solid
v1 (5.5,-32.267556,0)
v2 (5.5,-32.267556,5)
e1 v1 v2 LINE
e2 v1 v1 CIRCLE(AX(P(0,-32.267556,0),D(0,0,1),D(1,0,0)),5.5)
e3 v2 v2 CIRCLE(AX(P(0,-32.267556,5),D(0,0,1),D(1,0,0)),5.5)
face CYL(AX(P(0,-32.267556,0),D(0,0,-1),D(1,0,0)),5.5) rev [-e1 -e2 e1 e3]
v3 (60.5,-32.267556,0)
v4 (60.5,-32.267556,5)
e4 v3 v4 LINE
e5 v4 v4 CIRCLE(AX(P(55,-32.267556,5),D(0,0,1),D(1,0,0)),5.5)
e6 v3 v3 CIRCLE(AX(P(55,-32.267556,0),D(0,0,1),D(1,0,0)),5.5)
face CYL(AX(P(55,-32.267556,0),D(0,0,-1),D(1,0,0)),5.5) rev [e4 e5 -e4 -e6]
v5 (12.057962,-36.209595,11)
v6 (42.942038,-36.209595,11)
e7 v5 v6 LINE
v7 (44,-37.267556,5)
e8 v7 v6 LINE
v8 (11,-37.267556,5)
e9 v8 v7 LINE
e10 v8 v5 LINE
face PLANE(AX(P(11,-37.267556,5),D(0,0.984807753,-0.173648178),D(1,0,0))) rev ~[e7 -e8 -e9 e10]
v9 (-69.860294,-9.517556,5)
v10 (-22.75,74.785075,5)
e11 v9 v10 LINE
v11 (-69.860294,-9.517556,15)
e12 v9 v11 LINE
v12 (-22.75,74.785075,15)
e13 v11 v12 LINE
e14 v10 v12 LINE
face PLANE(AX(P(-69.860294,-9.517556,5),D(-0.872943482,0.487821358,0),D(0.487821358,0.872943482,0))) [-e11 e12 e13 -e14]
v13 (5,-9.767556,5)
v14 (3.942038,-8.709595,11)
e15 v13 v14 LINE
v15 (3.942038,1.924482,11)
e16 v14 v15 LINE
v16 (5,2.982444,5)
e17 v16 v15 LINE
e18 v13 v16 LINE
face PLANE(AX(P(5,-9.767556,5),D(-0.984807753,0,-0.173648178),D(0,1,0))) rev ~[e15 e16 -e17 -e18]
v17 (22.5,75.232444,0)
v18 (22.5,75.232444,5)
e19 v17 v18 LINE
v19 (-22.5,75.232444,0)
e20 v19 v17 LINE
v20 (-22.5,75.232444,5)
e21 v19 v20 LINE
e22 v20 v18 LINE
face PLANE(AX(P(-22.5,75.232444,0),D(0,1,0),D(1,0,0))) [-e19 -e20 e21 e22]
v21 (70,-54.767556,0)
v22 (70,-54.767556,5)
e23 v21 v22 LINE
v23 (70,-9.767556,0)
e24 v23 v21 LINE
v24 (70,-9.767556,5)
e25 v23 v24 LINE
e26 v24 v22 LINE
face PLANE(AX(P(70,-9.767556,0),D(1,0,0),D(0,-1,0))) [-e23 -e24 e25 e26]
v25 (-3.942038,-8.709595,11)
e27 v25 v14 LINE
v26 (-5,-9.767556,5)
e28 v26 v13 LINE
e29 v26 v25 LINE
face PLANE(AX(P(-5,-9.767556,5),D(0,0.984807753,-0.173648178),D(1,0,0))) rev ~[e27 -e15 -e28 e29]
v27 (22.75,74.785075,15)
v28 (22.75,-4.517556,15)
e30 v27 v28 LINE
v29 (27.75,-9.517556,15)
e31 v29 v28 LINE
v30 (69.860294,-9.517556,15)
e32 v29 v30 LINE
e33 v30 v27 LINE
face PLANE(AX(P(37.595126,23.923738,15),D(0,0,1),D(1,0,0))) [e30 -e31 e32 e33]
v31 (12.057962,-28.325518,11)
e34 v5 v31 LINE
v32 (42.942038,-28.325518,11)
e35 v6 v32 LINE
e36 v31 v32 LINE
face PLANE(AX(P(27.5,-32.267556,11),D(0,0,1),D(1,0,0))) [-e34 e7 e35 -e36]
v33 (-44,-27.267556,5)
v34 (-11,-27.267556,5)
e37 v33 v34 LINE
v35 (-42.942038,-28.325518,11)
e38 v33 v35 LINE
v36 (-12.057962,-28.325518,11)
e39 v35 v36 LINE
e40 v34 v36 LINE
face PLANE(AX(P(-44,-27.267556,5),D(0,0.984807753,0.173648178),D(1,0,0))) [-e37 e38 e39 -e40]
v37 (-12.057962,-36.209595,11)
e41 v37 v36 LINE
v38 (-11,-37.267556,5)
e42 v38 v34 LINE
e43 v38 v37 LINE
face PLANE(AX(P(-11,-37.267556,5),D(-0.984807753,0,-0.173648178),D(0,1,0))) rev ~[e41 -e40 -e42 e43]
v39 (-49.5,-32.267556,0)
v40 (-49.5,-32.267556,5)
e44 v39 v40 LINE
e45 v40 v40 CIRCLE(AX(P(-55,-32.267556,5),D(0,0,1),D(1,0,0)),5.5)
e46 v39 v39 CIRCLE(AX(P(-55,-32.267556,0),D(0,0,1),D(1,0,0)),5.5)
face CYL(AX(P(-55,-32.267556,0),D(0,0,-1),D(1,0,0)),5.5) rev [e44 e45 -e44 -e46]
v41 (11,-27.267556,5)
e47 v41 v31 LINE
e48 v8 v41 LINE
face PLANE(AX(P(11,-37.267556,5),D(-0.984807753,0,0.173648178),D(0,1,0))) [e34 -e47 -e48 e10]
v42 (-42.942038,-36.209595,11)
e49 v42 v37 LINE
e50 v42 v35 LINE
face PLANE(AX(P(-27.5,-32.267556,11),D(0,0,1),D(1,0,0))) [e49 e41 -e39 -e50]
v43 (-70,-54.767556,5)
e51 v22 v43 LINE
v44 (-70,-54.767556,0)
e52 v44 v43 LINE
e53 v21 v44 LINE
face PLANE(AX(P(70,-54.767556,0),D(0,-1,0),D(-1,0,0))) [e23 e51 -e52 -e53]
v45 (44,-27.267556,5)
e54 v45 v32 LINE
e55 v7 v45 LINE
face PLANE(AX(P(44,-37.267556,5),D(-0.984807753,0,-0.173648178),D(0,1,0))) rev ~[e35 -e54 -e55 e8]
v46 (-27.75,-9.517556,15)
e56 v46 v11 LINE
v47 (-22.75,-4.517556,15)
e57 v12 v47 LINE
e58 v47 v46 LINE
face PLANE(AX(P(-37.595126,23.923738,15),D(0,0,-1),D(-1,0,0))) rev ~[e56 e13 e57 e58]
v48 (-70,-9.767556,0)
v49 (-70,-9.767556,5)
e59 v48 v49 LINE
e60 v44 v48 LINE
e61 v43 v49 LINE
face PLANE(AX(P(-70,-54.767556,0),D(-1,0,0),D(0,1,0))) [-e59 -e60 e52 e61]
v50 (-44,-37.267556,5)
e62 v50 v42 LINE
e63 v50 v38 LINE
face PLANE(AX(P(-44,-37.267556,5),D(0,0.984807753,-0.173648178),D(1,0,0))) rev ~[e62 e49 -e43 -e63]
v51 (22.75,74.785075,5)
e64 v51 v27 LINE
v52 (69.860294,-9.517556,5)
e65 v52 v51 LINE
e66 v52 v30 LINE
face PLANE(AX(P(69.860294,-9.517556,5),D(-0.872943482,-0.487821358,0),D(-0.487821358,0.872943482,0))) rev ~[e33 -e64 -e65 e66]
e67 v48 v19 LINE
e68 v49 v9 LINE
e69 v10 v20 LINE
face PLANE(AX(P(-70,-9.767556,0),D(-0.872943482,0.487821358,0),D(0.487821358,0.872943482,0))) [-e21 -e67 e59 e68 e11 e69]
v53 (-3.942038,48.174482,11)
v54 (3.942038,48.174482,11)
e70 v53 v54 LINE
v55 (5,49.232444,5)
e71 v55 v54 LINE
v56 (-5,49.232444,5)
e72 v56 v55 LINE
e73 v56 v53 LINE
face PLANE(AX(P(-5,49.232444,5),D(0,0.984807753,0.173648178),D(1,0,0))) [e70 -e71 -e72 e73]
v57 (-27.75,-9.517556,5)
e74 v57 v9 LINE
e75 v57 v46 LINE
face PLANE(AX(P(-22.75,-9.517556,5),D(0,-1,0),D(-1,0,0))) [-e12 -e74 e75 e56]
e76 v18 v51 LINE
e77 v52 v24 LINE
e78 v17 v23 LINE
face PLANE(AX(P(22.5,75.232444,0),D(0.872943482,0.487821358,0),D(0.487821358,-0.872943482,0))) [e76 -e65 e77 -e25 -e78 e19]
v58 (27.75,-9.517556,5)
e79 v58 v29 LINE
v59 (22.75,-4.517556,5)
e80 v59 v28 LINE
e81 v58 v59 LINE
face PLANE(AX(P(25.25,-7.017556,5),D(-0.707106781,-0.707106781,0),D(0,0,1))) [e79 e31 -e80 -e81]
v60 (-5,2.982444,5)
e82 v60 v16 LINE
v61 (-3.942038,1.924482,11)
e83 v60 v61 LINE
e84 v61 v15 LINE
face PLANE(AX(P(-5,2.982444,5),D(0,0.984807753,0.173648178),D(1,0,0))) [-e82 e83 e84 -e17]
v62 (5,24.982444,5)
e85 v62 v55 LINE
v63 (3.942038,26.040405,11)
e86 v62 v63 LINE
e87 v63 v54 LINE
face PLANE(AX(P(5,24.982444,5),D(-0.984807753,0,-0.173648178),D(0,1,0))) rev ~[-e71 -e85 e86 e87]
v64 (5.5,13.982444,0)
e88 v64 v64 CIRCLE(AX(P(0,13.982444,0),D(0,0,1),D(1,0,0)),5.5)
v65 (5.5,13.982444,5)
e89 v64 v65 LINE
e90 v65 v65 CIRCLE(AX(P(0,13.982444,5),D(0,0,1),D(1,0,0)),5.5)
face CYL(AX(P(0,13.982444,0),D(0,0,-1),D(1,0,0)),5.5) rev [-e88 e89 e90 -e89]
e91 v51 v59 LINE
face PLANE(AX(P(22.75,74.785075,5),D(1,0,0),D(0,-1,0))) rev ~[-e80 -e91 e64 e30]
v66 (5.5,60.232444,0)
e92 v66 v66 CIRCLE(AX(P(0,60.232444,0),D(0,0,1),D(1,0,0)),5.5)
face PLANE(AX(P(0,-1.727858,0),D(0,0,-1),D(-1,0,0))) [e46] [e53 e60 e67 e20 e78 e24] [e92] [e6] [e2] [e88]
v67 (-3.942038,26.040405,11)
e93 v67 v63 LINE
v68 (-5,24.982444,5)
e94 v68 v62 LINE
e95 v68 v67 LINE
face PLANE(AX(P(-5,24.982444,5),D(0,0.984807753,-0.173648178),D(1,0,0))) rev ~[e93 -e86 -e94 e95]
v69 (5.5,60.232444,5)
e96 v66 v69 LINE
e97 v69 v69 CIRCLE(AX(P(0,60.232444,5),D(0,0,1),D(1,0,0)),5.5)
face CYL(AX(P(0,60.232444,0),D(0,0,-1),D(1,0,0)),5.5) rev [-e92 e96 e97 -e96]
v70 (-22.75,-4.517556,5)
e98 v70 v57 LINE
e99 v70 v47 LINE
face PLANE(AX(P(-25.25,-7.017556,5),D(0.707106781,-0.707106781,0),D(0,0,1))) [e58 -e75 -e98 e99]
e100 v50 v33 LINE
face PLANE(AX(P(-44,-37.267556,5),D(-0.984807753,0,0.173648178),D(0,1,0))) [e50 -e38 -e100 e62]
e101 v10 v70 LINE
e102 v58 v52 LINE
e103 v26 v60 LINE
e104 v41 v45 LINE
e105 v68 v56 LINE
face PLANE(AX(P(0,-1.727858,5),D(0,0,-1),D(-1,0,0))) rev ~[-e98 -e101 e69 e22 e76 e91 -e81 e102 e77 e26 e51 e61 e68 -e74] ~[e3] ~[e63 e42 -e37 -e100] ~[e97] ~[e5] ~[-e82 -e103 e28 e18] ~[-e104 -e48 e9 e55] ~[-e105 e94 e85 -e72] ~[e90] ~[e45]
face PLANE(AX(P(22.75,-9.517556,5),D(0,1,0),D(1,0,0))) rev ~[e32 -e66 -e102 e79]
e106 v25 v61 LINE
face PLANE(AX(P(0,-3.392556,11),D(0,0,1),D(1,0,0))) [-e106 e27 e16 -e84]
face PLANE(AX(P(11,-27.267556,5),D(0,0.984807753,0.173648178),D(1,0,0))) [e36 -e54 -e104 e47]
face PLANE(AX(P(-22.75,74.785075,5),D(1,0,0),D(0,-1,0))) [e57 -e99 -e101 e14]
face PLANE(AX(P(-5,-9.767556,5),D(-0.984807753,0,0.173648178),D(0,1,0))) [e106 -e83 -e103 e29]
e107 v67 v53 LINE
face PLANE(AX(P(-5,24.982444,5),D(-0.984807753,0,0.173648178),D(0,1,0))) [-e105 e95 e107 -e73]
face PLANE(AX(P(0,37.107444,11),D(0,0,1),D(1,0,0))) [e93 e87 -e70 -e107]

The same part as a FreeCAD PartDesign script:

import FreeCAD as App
import Part
import Sketcher
from FreeCAD import Vector
Q = App.Units.Quantity


def edges_at(feature, points):
    """Names of the edges that pass closest to the given points."""
    edges = feature.Shape.Edges
    near = lambda p: min(range(len(edges)), key=lambda i: edges[i].distToShape(Part.Vertex(*p))[0])
    return sorted({f"Edge{near(p) + 1}" for p in points})


def faces_at(feature, points):
    """Names of the faces that lie closest to the given points."""
    faces = feature.Shape.Faces
    near = lambda p: min(range(len(faces)), key=lambda i: faces[i].distToShape(Part.Vertex(*p))[0])
    return sorted({f"Face{near(p) + 1}" for p in points})


def add_polygon(sketch, points):
    """Adds a closed chain of lines whose ends are joined by coincident constraints."""
    first, n = sketch.GeometryCount, len(points)
    for a, b in zip(points, points[1:] + points[:1]):
        sketch.addGeometry(Part.LineSegment(App.Vector(*a, 0), App.Vector(*b, 0)), False)
    for i in range(n):
        sketch.addConstraint(Sketcher.Constraint("Coincident", first + i, 2, first + (i + 1) % n, 1))

doc = App.newDocument("Part")
body = doc.addObject("PartDesign::Body", "Body")

sketch1 = doc.addObject("Sketcher::SketchObject", "Sketch")
body.addObject(sketch1)
sketch1.AttachmentSupport = (doc.XY_Plane, [""])
sketch1.MapMode = "FlatFace"
add_polygon(sketch1, [(22.5, 75.232444), (-22.5, 75.232444), (-70, -9.767556), (-70, -54.767556), (70, -54.767556), (70, -9.767556)])
sketch1.addGeometry(Part.Circle(Vector(55, -32.267556, 0), Vector(0, 0, 1), 5.5), False)
sketch1.addGeometry(Part.Circle(Vector(0, -32.267556, 0), Vector(0, 0, 1), 5.5), False)
sketch1.addGeometry(Part.Circle(Vector(-55, -32.267556, 0), Vector(0, 0, 1), 5.5), False)
sketch1.addGeometry(Part.Circle(Vector(0, 13.982444, 0), Vector(0, 0, 1), 5.5), False)
sketch1.addGeometry(Part.Circle(Vector(0, 60.232444, 0), Vector(0, 0, 1), 5.5), False)
sketch1.addConstraint(Sketcher.Constraint("Horizontal", 0))
sketch1.addConstraint(Sketcher.Constraint("Vertical", 2))
sketch1.addConstraint(Sketcher.Constraint("Horizontal", 3))
sketch1.addConstraint(Sketcher.Constraint("Vertical", 4))
sketch1.addConstraint(Sketcher.Constraint("Equal", 6, 7))
sketch1.addConstraint(Sketcher.Constraint("Equal", 7, 8))
sketch1.addConstraint(Sketcher.Constraint("Equal", 8, 9))
sketch1.addConstraint(Sketcher.Constraint("Equal", 9, 10))
sketch1.addConstraint(Sketcher.Constraint("Symmetric", 6, 3, 8, 3, -2))
sketch1.addConstraint(Sketcher.Constraint("Symmetric", 1, 2, 4, 2, -2))
sketch1.addConstraint(Sketcher.Constraint("PointOnObject", 7, 3, -2))
sketch1.addConstraint(Sketcher.Constraint("PointOnObject", 9, 3, -2))
sketch1.addConstraint(Sketcher.Constraint("PointOnObject", 10, 3, -2))
sketch1.addConstraint(Sketcher.Constraint("Horizontal", 6, 3, 7, 3))
sketch1.addConstraint(Sketcher.Constraint("Equal", 0, 2))
sketch1.addConstraint(Sketcher.Constraint("Equal", 1, 5))
sketch1.addConstraint(Sketcher.Constraint("Diameter", 6, Q("11 mm")))
sketch1.addConstraint(Sketcher.Constraint("DistanceX", 0, 2, 0, 1, Q("45 mm")))
sketch1.addConstraint(Sketcher.Constraint("DistanceX", 3, 1, 3, 2, Q("140 mm")))
sketch1.addConstraint(Sketcher.Constraint("DistanceX", -1, 1, 6, 3, Q("55 mm")))
sketch1.addConstraint(Sketcher.Constraint("DistanceY", 10, 3, 0, 2, Q("15 mm")))
sketch1.addConstraint(Sketcher.Constraint("DistanceY", 1, 2, 0, 2, Q("85 mm")))
sketch1.addConstraint(Sketcher.Constraint("DistanceY", 7, 3, 10, 3, Q("92.5 mm")))
sketch1.addConstraint(Sketcher.Constraint("DistanceY", 7, 3, 9, 3, Q("46.25 mm")))
sketch1.addConstraint(Sketcher.Constraint("DistanceY", 6, 3, -1, 1, Q("32.267556 mm")))
pad1 = doc.addObject("PartDesign::Pad", "Pad")
body.addObject(pad1)
pad1.Profile = sketch1
pad1.Length = 5

sketch2 = doc.addObject("Sketcher::SketchObject", "Sketch001")
body.addObject(sketch2)
sketch2.AttachmentSupport = (doc.XY_Plane, [""])
sketch2.MapMode = "FlatFace"
sketch2.AttachmentOffset = App.Placement(Vector(0, 0, 5), App.Rotation())
add_polygon(sketch2, [(-44, -27.267556), (-44, -37.267556), (-11, -37.267556), (-11, -27.267556)])
add_polygon(sketch2, [(11, -27.267556), (11, -37.267556), (44, -37.267556), (44, -27.267556)])
add_polygon(sketch2, [(-5, 49.232444), (-5, 24.982444), (5, 24.982444), (5, 49.232444)])
add_polygon(sketch2, [(-5, 2.982444), (-5, -9.767556), (5, -9.767556), (5, 2.982444)])
sketch2.addConstraint(Sketcher.Constraint("Vertical", 0))
sketch2.addConstraint(Sketcher.Constraint("Horizontal", 1))
sketch2.addConstraint(Sketcher.Constraint("Vertical", 2))
sketch2.addConstraint(Sketcher.Constraint("Horizontal", 3))
sketch2.addConstraint(Sketcher.Constraint("Vertical", 4))
sketch2.addConstraint(Sketcher.Constraint("Horizontal", 5))
sketch2.addConstraint(Sketcher.Constraint("Vertical", 6))
sketch2.addConstraint(Sketcher.Constraint("Horizontal", 7))
sketch2.addConstraint(Sketcher.Constraint("Vertical", 8))
sketch2.addConstraint(Sketcher.Constraint("Horizontal", 9))
sketch2.addConstraint(Sketcher.Constraint("Vertical", 10))
sketch2.addConstraint(Sketcher.Constraint("Horizontal", 11))
sketch2.addConstraint(Sketcher.Constraint("Vertical", 12))
sketch2.addConstraint(Sketcher.Constraint("Horizontal", 13))
sketch2.addConstraint(Sketcher.Constraint("Vertical", 14))
sketch2.addConstraint(Sketcher.Constraint("Horizontal", 15))
sketch2.addConstraint(Sketcher.Constraint("Symmetric", 1, 2, 4, 2, -2))
sketch2.addConstraint(Sketcher.Constraint("Symmetric", 3, 2, 6, 2, -2))
sketch2.addConstraint(Sketcher.Constraint("Vertical", 11, 2, 12, 2))
sketch2.addConstraint(Sketcher.Constraint("Vertical", 10, 2, 13, 2))
sketch2.addConstraint(Sketcher.Constraint("Equal", 15, 0))
sketch2.addConstraint(Sketcher.Constraint("DistanceX", 1, 1, 1, 2, Q("33 mm")))
sketch2.addConstraint(Sketcher.Constraint("DistanceX", 9, 1, 9, 2, Q("10 mm")))
sketch2.addConstraint(Sketcher.Constraint("DistanceX", 0, 2, -1, 1, Q("44 mm")))
sketch2.addConstraint(Sketcher.Constraint("DistanceX", 8, 2, -1, 1, Q("5 mm")))
sketch2.addConstraint(Sketcher.Constraint("DistanceY", 14, 2, 9, 2, Q("22 mm")))
sketch2.addConstraint(Sketcher.Constraint("DistanceY", 8, 2, 8, 1, Q("24.25 mm")))
sketch2.addConstraint(Sketcher.Constraint("DistanceY", 12, 2, 12, 1, Q("12.75 mm")))
sketch2.addConstraint(Sketcher.Constraint("DistanceY", 7, 2, 10, 2, Q("76.5 mm")))
sketch2.addConstraint(Sketcher.Constraint("DistanceY", 0, 2, -1, 1, Q("37.267556 mm")))
pad2 = doc.addObject("PartDesign::Pad", "Pad001")
body.addObject(pad2)
pad2.Profile = sketch2
pad2.Length = 6
doc.recompute()

datumplane = doc.addObject("PartDesign::Plane", "DatumPlane")
body.addObject(datumplane)
datumplane.AttachmentSupport = (doc.XY_Plane, [""])
datumplane.MapMode = "FlatFace"
datumplane.AttachmentOffset = App.Placement(Vector(0, 0, 5), App.Rotation())
draft = doc.addObject("PartDesign::Draft", "Draft")
body.addObject(draft)
draft.Base = (pad2, faces_at(pad2, [
    (44, -32.268, 8),
    (27.5, -27.268, 8),
    (-11, -32.268, 8),
    (-27.5, -27.268, 8),
    (0, 2.982, 8),
    (5, -3.393, 8),
    (0, 49.232, 8),
    (5, 37.107, 8),
    (-5, 37.107, 8),
    (0, 24.982, 8),
    (11, -32.268, 8),
    (-44, -32.268, 8),
    (-5, -3.393, 8),
    (-27.5, -37.268, 8),
    (27.5, -37.268, 8),
    (0, -9.768, 8),
]))
draft.NeutralPlane = (datumplane, [""])
draft.Angle = 10
draft.Reversed = False

sketch3 = doc.addObject("Sketcher::SketchObject", "Sketch002")
body.addObject(sketch3)
sketch3.AttachmentSupport = (doc.XY_Plane, [""])
sketch3.MapMode = "FlatFace"
sketch3.AttachmentOffset = App.Placement(Vector(0, 0, 5), App.Rotation())
add_polygon(sketch3, [(-22.75, -9.517556), (-22.75, 74.785075), (-69.860294, -9.517556)])
add_polygon(sketch3, [(22.75, -9.517556), (69.860294, -9.517556), (22.75, 74.785075)])
sketch3.addConstraint(Sketcher.Constraint("Vertical", 0))
sketch3.addConstraint(Sketcher.Constraint("Horizontal", 2))
sketch3.addConstraint(Sketcher.Constraint("Horizontal", 3))
sketch3.addConstraint(Sketcher.Constraint("Vertical", 5))
sketch3.addConstraint(Sketcher.Constraint("Symmetric", 1, 2, 3, 2, -2))
sketch3.addConstraint(Sketcher.Constraint("Symmetric", 0, 2, 4, 2, -2))
sketch3.addConstraint(Sketcher.Constraint("DistanceX", 0, 2, 4, 2, Q("45.5 mm")))
sketch3.addConstraint(Sketcher.Constraint("DistanceY", 0, 1, 0, 2, Q("84.302632 mm")))
sketch3.addConstraint(Sketcher.Constraint("Distance", 1, Q("96.57284 mm")))
sketch3.addConstraint(Sketcher.Constraint("DistanceY", -1, 1, 0, 2, Q("74.785075 mm")))
pad3 = doc.addObject("PartDesign::Pad", "Pad002")
body.addObject(pad3)
pad3.Profile = sketch3
pad3.Length = 10
doc.recompute()

chamfer = doc.addObject("PartDesign::Chamfer", "Chamfer")
body.addObject(chamfer)
chamfer.Base = (pad3, edges_at(pad3, [(-22.75, -9.518, 10), (22.75, -9.518, 10)]))
chamfer.Size = 5

doc.recompute()
